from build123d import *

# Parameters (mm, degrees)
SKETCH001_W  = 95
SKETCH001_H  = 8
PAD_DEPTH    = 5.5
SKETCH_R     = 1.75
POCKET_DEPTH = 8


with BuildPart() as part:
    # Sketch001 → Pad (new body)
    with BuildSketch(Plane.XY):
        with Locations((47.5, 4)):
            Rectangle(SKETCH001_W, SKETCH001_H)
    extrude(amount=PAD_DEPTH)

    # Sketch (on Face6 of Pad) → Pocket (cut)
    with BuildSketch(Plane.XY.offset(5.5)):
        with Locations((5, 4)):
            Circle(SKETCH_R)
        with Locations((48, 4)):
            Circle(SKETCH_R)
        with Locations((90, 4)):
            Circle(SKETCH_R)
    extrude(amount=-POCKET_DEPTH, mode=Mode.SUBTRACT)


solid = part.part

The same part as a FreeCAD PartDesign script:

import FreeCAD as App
import Part
import Sketcher
Q = App.Units.Quantity

doc = App.newDocument("Part")
body = doc.addObject("PartDesign::Body", "Body")

# Sketch on XY plane
sketch1 = body.newObject("Sketcher::SketchObject", "Sketch")
sketch1.AttachmentSupport = (doc.getObject("XY_Plane"), [""])
sketch1.MapMode = "FlatFace"
sketch1.addGeometry(Part.LineSegment(App.Vector(0, 8, 0), App.Vector(0, 0, 0)), False)
sketch1.addGeometry(Part.LineSegment(App.Vector(0, 0, 0), App.Vector(95, 0, 0)), False)
sketch1.addGeometry(Part.LineSegment(App.Vector(95, 0, 0), App.Vector(95, 8, 0)), False)
sketch1.addGeometry(Part.LineSegment(App.Vector(95, 8, 0), App.Vector(0, 8, 0)), False)
sketch1.addConstraint(Sketcher.Constraint("Coincident", 0, 2, 1, 1))
sketch1.addConstraint(Sketcher.Constraint("Coincident", 1, 2, 2, 1))
sketch1.addConstraint(Sketcher.Constraint("Coincident", 2, 2, 3, 1))
sketch1.addConstraint(Sketcher.Constraint("Coincident", 3, 2, 0, 1))
sketch1.addConstraint(Sketcher.Constraint("Vertical", 0))
sketch1.addConstraint(Sketcher.Constraint("Horizontal", 1))
sketch1.addConstraint(Sketcher.Constraint("Vertical", 2))
sketch1.addConstraint(Sketcher.Constraint("Horizontal", 3))
sketch1.addConstraint(Sketcher.Constraint("Coincident", 0, 2, -1, 1))
sketch1.addConstraint(Sketcher.Constraint("DistanceX", 1, 1, 1, 2, Q("95 mm")))
sketch1.addConstraint(Sketcher.Constraint("DistanceY", 0, 2, 0, 1, Q("8 mm")))
pad1 = body.newObject("PartDesign::Pad", "Pad")
pad1.Profile = sketch1
pad1.Length = 5.5

# Sketch on XY plane
sketch2 = body.newObject("Sketcher::SketchObject", "Sketch001")
sketch2.AttachmentSupport = (doc.getObject("XY_Plane"), [""])
sketch2.MapMode = "FlatFace"
sketch2.AttachmentOffset = App.Placement(App.Vector(0, 0, 5.5), App.Rotation())
sketch2.addGeometry(Part.Circle(App.Vector(5, 4, 0), App.Vector(0, 0, 1), 1.8), False)
sketch2.addGeometry(Part.Circle(App.Vector(48, 4, 0), App.Vector(0, 0, 1), 1.8), False)
sketch2.addGeometry(Part.Circle(App.Vector(90, 4, 0), App.Vector(0, 0, 1), 1.8), False)
sketch2.addConstraint(Sketcher.Constraint("Equal", 0, 1))
sketch2.addConstraint(Sketcher.Constraint("Equal", 1, 2))
sketch2.addConstraint(Sketcher.Constraint("Horizontal", 0, 3, 1, 3))
sketch2.addConstraint(Sketcher.Constraint("Horizontal", 1, 3, 2, 3))
sketch2.addConstraint(Sketcher.Constraint("Diameter", 0, Q("3.5 mm")))
sketch2.addConstraint(Sketcher.Constraint("DistanceX", -1, 1, 0, 3, Q("5 mm")))
sketch2.addConstraint(Sketcher.Constraint("DistanceY", -1, 1, 0, 3, Q("4 mm")))
sketch2.addConstraint(Sketcher.Constraint("DistanceX", -1, 1, 1, 3, Q("48 mm")))
sketch2.addConstraint(Sketcher.Constraint("DistanceX", -1, 1, 2, 3, Q("90 mm")))
pocket1 = body.newObject("PartDesign::Pocket", "Pocket")
pocket1.Profile = sketch2
pocket1.Length = 8

doc.recompute()
